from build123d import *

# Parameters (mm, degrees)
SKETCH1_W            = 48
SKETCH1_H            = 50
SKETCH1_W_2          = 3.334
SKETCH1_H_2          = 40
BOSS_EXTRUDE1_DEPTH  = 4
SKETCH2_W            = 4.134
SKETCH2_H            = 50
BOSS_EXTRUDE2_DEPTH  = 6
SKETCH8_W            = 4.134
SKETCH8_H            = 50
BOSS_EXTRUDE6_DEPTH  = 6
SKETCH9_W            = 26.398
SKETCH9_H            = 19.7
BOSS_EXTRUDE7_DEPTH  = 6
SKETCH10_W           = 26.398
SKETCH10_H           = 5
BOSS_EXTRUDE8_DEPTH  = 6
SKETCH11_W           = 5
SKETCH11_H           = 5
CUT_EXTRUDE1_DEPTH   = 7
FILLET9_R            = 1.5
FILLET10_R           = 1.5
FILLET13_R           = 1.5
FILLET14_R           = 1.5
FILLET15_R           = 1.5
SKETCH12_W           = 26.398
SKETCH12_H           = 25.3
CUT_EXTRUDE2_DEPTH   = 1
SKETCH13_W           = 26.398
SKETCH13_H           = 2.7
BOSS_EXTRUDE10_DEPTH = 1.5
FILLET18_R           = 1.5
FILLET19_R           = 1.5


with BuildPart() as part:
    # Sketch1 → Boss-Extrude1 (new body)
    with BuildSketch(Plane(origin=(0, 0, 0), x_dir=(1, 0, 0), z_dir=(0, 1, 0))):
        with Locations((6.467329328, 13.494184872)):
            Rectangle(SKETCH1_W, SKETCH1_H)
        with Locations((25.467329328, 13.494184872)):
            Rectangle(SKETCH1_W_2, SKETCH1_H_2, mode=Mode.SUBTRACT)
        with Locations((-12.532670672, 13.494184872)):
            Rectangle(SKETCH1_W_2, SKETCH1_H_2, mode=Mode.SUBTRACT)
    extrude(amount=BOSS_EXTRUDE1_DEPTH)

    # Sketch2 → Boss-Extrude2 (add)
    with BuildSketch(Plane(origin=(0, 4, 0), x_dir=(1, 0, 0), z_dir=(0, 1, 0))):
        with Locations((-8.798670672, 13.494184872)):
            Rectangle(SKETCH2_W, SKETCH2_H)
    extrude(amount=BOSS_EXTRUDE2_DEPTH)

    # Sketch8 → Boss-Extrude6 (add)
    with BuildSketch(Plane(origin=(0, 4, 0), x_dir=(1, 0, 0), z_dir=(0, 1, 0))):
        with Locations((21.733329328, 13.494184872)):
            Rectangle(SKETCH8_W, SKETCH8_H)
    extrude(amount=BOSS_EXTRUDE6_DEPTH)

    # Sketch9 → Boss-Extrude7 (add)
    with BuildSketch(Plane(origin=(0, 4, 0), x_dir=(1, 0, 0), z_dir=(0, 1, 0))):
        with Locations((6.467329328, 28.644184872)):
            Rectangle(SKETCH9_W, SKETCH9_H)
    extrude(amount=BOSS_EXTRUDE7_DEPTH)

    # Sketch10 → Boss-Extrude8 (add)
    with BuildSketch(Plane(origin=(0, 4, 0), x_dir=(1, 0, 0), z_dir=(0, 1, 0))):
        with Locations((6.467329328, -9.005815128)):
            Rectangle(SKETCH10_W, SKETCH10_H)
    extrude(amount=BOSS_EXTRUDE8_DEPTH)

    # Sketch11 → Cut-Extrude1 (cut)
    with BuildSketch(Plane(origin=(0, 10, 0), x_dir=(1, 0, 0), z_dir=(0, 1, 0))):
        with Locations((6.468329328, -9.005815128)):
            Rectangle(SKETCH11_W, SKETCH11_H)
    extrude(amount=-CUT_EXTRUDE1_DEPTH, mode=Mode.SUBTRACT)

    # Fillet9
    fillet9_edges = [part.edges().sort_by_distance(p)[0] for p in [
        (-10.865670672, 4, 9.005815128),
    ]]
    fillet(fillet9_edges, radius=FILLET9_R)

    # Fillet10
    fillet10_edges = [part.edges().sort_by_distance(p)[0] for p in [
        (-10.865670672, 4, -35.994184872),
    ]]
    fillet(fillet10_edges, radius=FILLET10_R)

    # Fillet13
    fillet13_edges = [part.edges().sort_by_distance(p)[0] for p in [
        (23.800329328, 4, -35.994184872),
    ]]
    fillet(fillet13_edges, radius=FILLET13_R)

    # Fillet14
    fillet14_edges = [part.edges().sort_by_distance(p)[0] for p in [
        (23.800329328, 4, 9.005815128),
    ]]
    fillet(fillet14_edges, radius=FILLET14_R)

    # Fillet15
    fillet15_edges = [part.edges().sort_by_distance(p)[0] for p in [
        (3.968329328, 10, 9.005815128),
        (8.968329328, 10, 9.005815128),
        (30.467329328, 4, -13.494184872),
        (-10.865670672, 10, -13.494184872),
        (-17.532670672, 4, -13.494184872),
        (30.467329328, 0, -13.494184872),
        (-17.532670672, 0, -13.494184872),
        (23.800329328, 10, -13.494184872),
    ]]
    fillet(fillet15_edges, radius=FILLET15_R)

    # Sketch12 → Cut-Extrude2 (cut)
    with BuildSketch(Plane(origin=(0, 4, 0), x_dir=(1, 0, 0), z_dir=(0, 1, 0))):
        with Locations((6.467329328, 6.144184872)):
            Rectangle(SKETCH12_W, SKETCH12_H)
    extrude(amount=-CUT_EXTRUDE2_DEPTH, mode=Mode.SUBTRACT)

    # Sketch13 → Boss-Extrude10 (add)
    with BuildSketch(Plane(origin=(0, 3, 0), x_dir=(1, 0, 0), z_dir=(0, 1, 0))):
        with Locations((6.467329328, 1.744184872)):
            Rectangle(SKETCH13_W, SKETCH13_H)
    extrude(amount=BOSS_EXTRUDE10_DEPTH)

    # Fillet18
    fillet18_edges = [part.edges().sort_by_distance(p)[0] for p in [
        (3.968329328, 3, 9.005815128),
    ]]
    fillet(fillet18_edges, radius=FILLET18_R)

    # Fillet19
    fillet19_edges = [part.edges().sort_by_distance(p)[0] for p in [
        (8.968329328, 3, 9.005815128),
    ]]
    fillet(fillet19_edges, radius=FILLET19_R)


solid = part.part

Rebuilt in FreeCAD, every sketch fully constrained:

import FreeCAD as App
import Part
import Sketcher

V = App.Vector
Q = App.Units.Quantity


def edges_at(feature, points):
    """Names of the edges that pass closest to the given points."""
    edges = feature.Shape.Edges
    near = lambda p: min(range(len(edges)), key=lambda i: edges[i].distToShape(Part.Vertex(*p))[0])
    return sorted({f"Edge{near(p) + 1}" for p in points})

doc = App.newDocument("Part")
body = doc.addObject("PartDesign::Body", "Body")

sketch1 = body.newObject("Sketcher::SketchObject", "Sketch")
sketch1.AttachmentSupport = (doc.getObject("XZ_Plane"), [""])
sketch1.MapMode = "FlatFace"
sketch1.addGeometry([
    Part.LineSegment(V(-17.532671, -38.494185, 0), V(-17.532671, 11.505815, 0)),
    Part.LineSegment(V(-17.532671, 11.505815, 0), V(30.467329, 11.505815, 0)),
    Part.LineSegment(V(30.467329, 11.505815, 0), V(30.467329, -38.494185, 0)),
    Part.LineSegment(V(30.467329, -38.494185, 0), V(-17.532671, -38.494185, 0)),
    Part.LineSegment(V(-10.865671, 6.505815, 0), V(-14.199671, 6.505815, 0)),
    Part.LineSegment(V(-14.199671, 6.505815, 0), V(-14.199671, -33.494185, 0)),
    Part.LineSegment(V(-14.199671, -33.494185, 0), V(-10.865671, -33.494185, 0)),
    Part.LineSegment(V(-10.865671, -33.494185, 0), V(-10.865671, 6.505815, 0)),
    Part.LineSegment(V(27.134329, 6.505815, 0), V(23.800329, 6.505815, 0)),
    Part.LineSegment(V(23.800329, 6.505815, 0), V(23.800329, -33.494185, 0)),
    Part.LineSegment(V(23.800329, -33.494185, 0), V(27.134329, -33.494185, 0)),
    Part.LineSegment(V(27.134329, -33.494185, 0), V(27.134329, 6.505815, 0)),
], False)
sketch1.addConstraint([
    Sketcher.Constraint("Coincident", 0, 2, 1, 1),
    Sketcher.Constraint("Coincident", 1, 2, 2, 1),
    Sketcher.Constraint("Coincident", 2, 2, 3, 1),
    Sketcher.Constraint("Coincident", 3, 2, 0, 1),
    Sketcher.Constraint("Coincident", 4, 2, 5, 1),
    Sketcher.Constraint("Coincident", 5, 2, 6, 1),
    Sketcher.Constraint("Coincident", 6, 2, 7, 1),
    Sketcher.Constraint("Coincident", 7, 2, 4, 1),
    Sketcher.Constraint("Coincident", 8, 2, 9, 1),
    Sketcher.Constraint("Coincident", 9, 2, 10, 1),
    Sketcher.Constraint("Coincident", 10, 2, 11, 1),
    Sketcher.Constraint("Coincident", 11, 2, 8, 1),
    Sketcher.Constraint("Vertical", 0),
    Sketcher.Constraint("Horizontal", 1),
    Sketcher.Constraint("Vertical", 2),
    Sketcher.Constraint("Horizontal", 3),
    Sketcher.Constraint("Horizontal", 4),
    Sketcher.Constraint("Vertical", 5),
    Sketcher.Constraint("Horizontal", 6),
    Sketcher.Constraint("Vertical", 7),
    Sketcher.Constraint("Horizontal", 8),
    Sketcher.Constraint("Vertical", 9),
    Sketcher.Constraint("Horizontal", 10),
    Sketcher.Constraint("Vertical", 11),
    Sketcher.Constraint("Horizontal", 7, 2, 8, 2),
    Sketcher.Constraint("Horizontal", 6, 2, 9, 2),
    Sketcher.Constraint("Equal", 6, 8),
    Sketcher.Constraint("DistanceX", 1, 1, 1, 2, Q("48 mm")),
    Sketcher.Constraint("DistanceY", 0, 1, 0, 2, Q("50 mm")),
    Sketcher.Constraint("DistanceY", 5, 2, 5, 1, Q("40 mm")),
    Sketcher.Constraint("DistanceY", 4, 2, 0, 2, Q("5 mm")),
    Sketcher.Constraint("DistanceX", 4, 2, 8, 2, Q("38 mm")),
    Sketcher.Constraint("DistanceX", 4, 2, 4, 1, Q("3.334 mm")),
    Sketcher.Constraint("DistanceX", 0, 2, 4, 2, Q("3.333 mm")),
    Sketcher.Constraint("DistanceX", 0, 2, -1, 1, Q("17.532671 mm")),
    Sketcher.Constraint("DistanceY", -1, 1, 0, 2, Q("11.505815 mm")),
])
pad1 = body.newObject("PartDesign::Pad", "Pad")
pad1.Profile = sketch1
pad1.Length = 4
pad1.Reversed = True

sketch2 = body.newObject("Sketcher::SketchObject", "Sketch001")
sketch2.AttachmentSupport = (doc.getObject("XZ_Plane"), [""])
sketch2.MapMode = "FlatFace"
sketch2.AttachmentOffset = App.Placement(V(0, 0, -4), App.Rotation())
sketch2.addGeometry([
    Part.LineSegment(V(-10.865671, -38.494185, 0), V(-10.865671, 11.505815, 0)),
    Part.LineSegment(V(-10.865671, 11.505815, 0), V(-6.731671, 11.505815, 0)),
    Part.LineSegment(V(-6.731671, 11.505815, 0), V(-6.731671, -38.494185, 0)),
    Part.LineSegment(V(-6.731671, -38.494185, 0), V(-10.865671, -38.494185, 0)),
], False)
sketch2.addConstraint([
    Sketcher.Constraint("Coincident", 0, 2, 1, 1),
    Sketcher.Constraint("Coincident", 1, 2, 2, 1),
    Sketcher.Constraint("Coincident", 2, 2, 3, 1),
    Sketcher.Constraint("Coincident", 3, 2, 0, 1),
    Sketcher.Constraint("Vertical", 0),
    Sketcher.Constraint("Horizontal", 1),
    Sketcher.Constraint("Vertical", 2),
    Sketcher.Constraint("Horizontal", 3),
    Sketcher.Constraint("DistanceY", 0, 1, 0, 2, Q("50 mm")),
    Sketcher.Constraint("DistanceX", 1, 1, 1, 2, Q("4.134 mm")),
    Sketcher.Constraint("DistanceX", 0, 2, -1, 1, Q("10.865671 mm")),
    Sketcher.Constraint("DistanceY", -1, 1, 0, 2, Q("11.505815 mm")),
])
pad2 = body.newObject("PartDesign::Pad", "Pad001")
pad2.Profile = sketch2
pad2.Length = 6
pad2.Reversed = True

sketch3 = body.newObject("Sketcher::SketchObject", "Sketch002")
sketch3.AttachmentSupport = (doc.getObject("XZ_Plane"), [""])
sketch3.MapMode = "FlatFace"
sketch3.AttachmentOffset = App.Placement(V(0, 0, -4), App.Rotation())
sketch3.addGeometry([
    Part.LineSegment(V(19.666329, -38.494185, 0), V(19.666329, 11.505815, 0)),
    Part.LineSegment(V(19.666329, 11.505815, 0), V(23.800329, 11.505815, 0)),
    Part.LineSegment(V(23.800329, 11.505815, 0), V(23.800329, -38.494185, 0)),
    Part.LineSegment(V(23.800329, -38.494185, 0), V(19.666329, -38.494185, 0)),
], False)
sketch3.addConstraint([
    Sketcher.Constraint("Coincident", 0, 2, 1, 1),
    Sketcher.Constraint("Coincident", 1, 2, 2, 1),
    Sketcher.Constraint("Coincident", 2, 2, 3, 1),
    Sketcher.Constraint("Coincident", 3, 2, 0, 1),
    Sketcher.Constraint("Vertical", 0),
    Sketcher.Constraint("Horizontal", 1),
    Sketcher.Constraint("Vertical", 2),
    Sketcher.Constraint("Horizontal", 3),
    Sketcher.Constraint("DistanceY", 0, 1, 0, 2, Q("50 mm")),
    Sketcher.Constraint("DistanceX", 1, 1, 1, 2, Q("4.134 mm")),
    Sketcher.Constraint("DistanceX", -1, 1, 0, 2, Q("19.666329 mm")),
    Sketcher.Constraint("DistanceY", -1, 1, 0, 2, Q("11.505815 mm")),
])
pad3 = body.newObject("PartDesign::Pad", "Pad002")
pad3.Profile = sketch3
pad3.Length = 6
pad3.Reversed = True

sketch4 = body.newObject("Sketcher::SketchObject", "Sketch003")
sketch4.AttachmentSupport = (doc.getObject("XZ_Plane"), [""])
sketch4.MapMode = "FlatFace"
sketch4.AttachmentOffset = App.Placement(V(0, 0, -4), App.Rotation())
sketch4.addGeometry([
    Part.LineSegment(V(-6.731671, -38.494185, 0), V(-6.731671, -18.794185, 0)),
    Part.LineSegment(V(-6.731671, -18.794185, 0), V(19.666329, -18.794185, 0)),
    Part.LineSegment(V(19.666329, -18.794185, 0), V(19.666329, -38.494185, 0)),
    Part.LineSegment(V(19.666329, -38.494185, 0), V(-6.731671, -38.494185, 0)),
], False)
sketch4.addConstraint([
    Sketcher.Constraint("Coincident", 0, 2, 1, 1),
    Sketcher.Constraint("Coincident", 1, 2, 2, 1),
    Sketcher.Constraint("Coincident", 2, 2, 3, 1),
    Sketcher.Constraint("Coincident", 3, 2, 0, 1),
    Sketcher.Constraint("Vertical", 0),
    Sketcher.Constraint("Horizontal", 1),
    Sketcher.Constraint("Vertical", 2),
    Sketcher.Constraint("Horizontal", 3),
    Sketcher.Constraint("DistanceY", 0, 1, 0, 2, Q("19.7 mm")),
    Sketcher.Constraint("DistanceX", 1, 1, 1, 2, Q("26.398 mm")),
    Sketcher.Constraint("DistanceX", 0, 2, -1, 1, Q("6.731671 mm")),
    Sketcher.Constraint("DistanceY", 0, 2, -1, 1, Q("18.794185 mm")),
])
pad4 = body.newObject("PartDesign::Pad", "Pad003")
pad4.Profile = sketch4
pad4.Length = 6
pad4.Reversed = True

sketch5 = body.newObject("Sketcher::SketchObject", "Sketch004")
sketch5.AttachmentSupport = (doc.getObject("XZ_Plane"), [""])
sketch5.MapMode = "FlatFace"
sketch5.AttachmentOffset = App.Placement(V(0, 0, -4), App.Rotation())
sketch5.addGeometry([
    Part.LineSegment(V(-6.731671, 6.505815, 0), V(-6.731671, 11.505815, 0)),
    Part.LineSegment(V(-6.731671, 11.505815, 0), V(19.666329, 11.505815, 0)),
    Part.LineSegment(V(19.666329, 11.505815, 0), V(19.666329, 6.505815, 0)),
    Part.LineSegment(V(19.666329, 6.505815, 0), V(-6.731671, 6.505815, 0)),
], False)
sketch5.addConstraint([
    Sketcher.Constraint("Coincident", 0, 2, 1, 1),
    Sketcher.Constraint("Coincident", 1, 2, 2, 1),
    Sketcher.Constraint("Coincident", 2, 2, 3, 1),
    Sketcher.Constraint("Coincident", 3, 2, 0, 1),
    Sketcher.Constraint("Vertical", 0),
    Sketcher.Constraint("Horizontal", 1),
    Sketcher.Constraint("Vertical", 2),
    Sketcher.Constraint("Horizontal", 3),
    Sketcher.Constraint("DistanceY", 0, 1, 0, 2, Q("5 mm")),
    Sketcher.Constraint("DistanceX", 1, 1, 1, 2, Q("26.398 mm")),
    Sketcher.Constraint("DistanceX", 0, 2, -1, 1, Q("6.731671 mm")),
    Sketcher.Constraint("DistanceY", -1, 1, 0, 2, Q("11.505815 mm")),
])
pad5 = body.newObject("PartDesign::Pad", "Pad004")
pad5.Profile = sketch5
pad5.Length = 6
pad5.Reversed = True

sketch6 = body.newObject("Sketcher::SketchObject", "Sketch005")
sketch6.AttachmentSupport = (doc.getObject("XZ_Plane"), [""])
sketch6.MapMode = "FlatFace"
sketch6.AttachmentOffset = App.Placement(V(0, 0, -10), App.Rotation())
sketch6.addGeometry([
    Part.LineSegment(V(3.968329, 6.505815, 0), V(3.968329, 11.505815, 0)),
    Part.LineSegment(V(3.968329, 11.505815, 0), V(8.968329, 11.505815, 0)),
    Part.LineSegment(V(8.968329, 11.505815, 0), V(8.968329, 6.505815, 0)),
    Part.LineSegment(V(8.968329, 6.505815, 0), V(3.968329, 6.505815, 0)),
], False)
sketch6.addConstraint([
    Sketcher.Constraint("Coincident", 0, 2, 1, 1),
    Sketcher.Constraint("Coincident", 1, 2, 2, 1),
    Sketcher.Constraint("Coincident", 2, 2, 3, 1),
    Sketcher.Constraint("Coincident", 3, 2, 0, 1),
    Sketcher.Constraint("Vertical", 0),
    Sketcher.Constraint("Horizontal", 1),
    Sketcher.Constraint("Vertical", 2),
    Sketcher.Constraint("Horizontal", 3),
    Sketcher.Constraint("Equal", 3, 0),
    Sketcher.Constraint("DistanceX", 1, 1, 1, 2, Q("5 mm")),
    Sketcher.Constraint("DistanceX", -1, 1, 0, 2, Q("3.968329 mm")),
    Sketcher.Constraint("DistanceY", -1, 1, 0, 2, Q("11.505815 mm")),
])
pocket1 = body.newObject("PartDesign::Pocket", "Pocket")
pocket1.Profile = sketch6
pocket1.Length = 7
pocket1.Reversed = True
doc.recompute()

fillet = body.newObject("PartDesign::Fillet", "Fillet")
fillet.Base = (pocket1, edges_at(pocket1, [(-10.866, 4, 9.006)]))
fillet.Radius = 1.5
doc.recompute()

fillet2 = body.newObject("PartDesign::Fillet", "Fillet001")
fillet2.Base = (fillet, edges_at(fillet, [(-10.866, 4, -35.994)]))
fillet2.Radius = 1.5
doc.recompute()

fillet3 = body.newObject("PartDesign::Fillet", "Fillet002")
fillet3.Base = (fillet2, edges_at(fillet2, [(23.8, 4, -35.994)]))
fillet3.Radius = 1.5
doc.recompute()

fillet4 = body.newObject("PartDesign::Fillet", "Fillet003")
fillet4.Base = (fillet3, edges_at(fillet3, [(23.8, 4, 9.006)]))
fillet4.Radius = 1.5
doc.recompute()

fillet5 = body.newObject("PartDesign::Fillet", "Fillet004")
fillet5.Base = (fillet4, edges_at(fillet4, [
    (3.968, 10, 9.006),
    (8.968, 10, 9.006),
    (30.467, 4, -13.494),
    (-10.866, 10, -13.494),
    (-17.533, 4, -13.494),
    (30.467, 0, -13.494),
    (-17.533, 0, -13.494),
    (23.8, 10, -13.494),
]))
fillet5.Radius = 1.5

sketch7 = body.newObject("Sketcher::SketchObject", "Sketch006")
sketch7.AttachmentSupport = (doc.getObject("XZ_Plane"), [""])
sketch7.MapMode = "FlatFace"
sketch7.AttachmentOffset = App.Placement(V(0, 0, -4), App.Rotation())
sketch7.addGeometry([
    Part.LineSegment(V(-6.731671, -18.794185, 0), V(-6.731671, 6.505815, 0)),
    Part.LineSegment(V(-6.731671, 6.505815, 0), V(19.666329, 6.505815, 0)),
    Part.LineSegment(V(19.666329, 6.505815, 0), V(19.666329, -18.794185, 0)),
    Part.LineSegment(V(19.666329, -18.794185, 0), V(-6.731671, -18.794185, 0)),
], False)
sketch7.addConstraint([
    Sketcher.Constraint("Coincident", 0, 2, 1, 1),
    Sketcher.Constraint("Coincident", 1, 2, 2, 1),
    Sketcher.Constraint("Coincident", 2, 2, 3, 1),
    Sketcher.Constraint("Coincident", 3, 2, 0, 1),
    Sketcher.Constraint("Vertical", 0),
    Sketcher.Constraint("Horizontal", 1),
    Sketcher.Constraint("Vertical", 2),
    Sketcher.Constraint("Horizontal", 3),
    Sketcher.Constraint("DistanceY", 0, 1, 0, 2, Q("25.3 mm")),
    Sketcher.Constraint("DistanceX", 1, 1, 1, 2, Q("26.398 mm")),
    Sketcher.Constraint("DistanceX", 0, 2, -1, 1, Q("6.731671 mm")),
    Sketcher.Constraint("DistanceY", -1, 1, 0, 2, Q("6.505815 mm")),
])
pocket2 = body.newObject("PartDesign::Pocket", "Pocket001")
pocket2.Profile = sketch7
pocket2.Length = 1
pocket2.Reversed = True

sketch8 = body.newObject("Sketcher::SketchObject", "Sketch007")
sketch8.AttachmentSupport = (doc.getObject("XZ_Plane"), [""])
sketch8.MapMode = "FlatFace"
sketch8.AttachmentOffset = App.Placement(V(0, 0, -3), App.Rotation())
sketch8.addGeometry([
    Part.LineSegment(V(-6.731671, -3.094185, 0), V(-6.731671, -0.394185, 0)),
    Part.LineSegment(V(-6.731671, -0.394185, 0), V(19.666329, -0.394185, 0)),
    Part.LineSegment(V(19.666329, -0.394185, 0), V(19.666329, -3.094185, 0)),
    Part.LineSegment(V(19.666329, -3.094185, 0), V(-6.731671, -3.094185, 0)),
], False)
sketch8.addConstraint([
    Sketcher.Constraint("Coincident", 0, 2, 1, 1),
    Sketcher.Constraint("Coincident", 1, 2, 2, 1),
    Sketcher.Constraint("Coincident", 2, 2, 3, 1),
    Sketcher.Constraint("Coincident", 3, 2, 0, 1),
    Sketcher.Constraint("Vertical", 0),
    Sketcher.Constraint("Horizontal", 1),
    Sketcher.Constraint("Vertical", 2),
    Sketcher.Constraint("Horizontal", 3),
    Sketcher.Constraint("DistanceY", 0, 1, 0, 2, Q("2.7 mm")),
    Sketcher.Constraint("DistanceX", 1, 1, 1, 2, Q("26.398 mm")),
    Sketcher.Constraint("DistanceX", 0, 2, -1, 1, Q("6.731671 mm")),
    Sketcher.Constraint("DistanceY", 0, 2, -1, 1, Q("0.394185 mm")),
])
pad6 = body.newObject("PartDesign::Pad", "Pad005")
pad6.Profile = sketch8
pad6.Length = 1.5
pad6.Reversed = True
doc.recompute()

fillet6 = body.newObject("PartDesign::Fillet", "Fillet005")
fillet6.Base = (pad6, edges_at(pad6, [(3.968, 3, 9.006)]))
fillet6.Radius = 1.5
doc.recompute()

fillet7 = body.newObject("PartDesign::Fillet", "Fillet006")
fillet7.Base = (fillet6, edges_at(fillet6, [(8.968, 3, 9.006)]))
fillet7.Radius = 1.5

doc.recompute()
